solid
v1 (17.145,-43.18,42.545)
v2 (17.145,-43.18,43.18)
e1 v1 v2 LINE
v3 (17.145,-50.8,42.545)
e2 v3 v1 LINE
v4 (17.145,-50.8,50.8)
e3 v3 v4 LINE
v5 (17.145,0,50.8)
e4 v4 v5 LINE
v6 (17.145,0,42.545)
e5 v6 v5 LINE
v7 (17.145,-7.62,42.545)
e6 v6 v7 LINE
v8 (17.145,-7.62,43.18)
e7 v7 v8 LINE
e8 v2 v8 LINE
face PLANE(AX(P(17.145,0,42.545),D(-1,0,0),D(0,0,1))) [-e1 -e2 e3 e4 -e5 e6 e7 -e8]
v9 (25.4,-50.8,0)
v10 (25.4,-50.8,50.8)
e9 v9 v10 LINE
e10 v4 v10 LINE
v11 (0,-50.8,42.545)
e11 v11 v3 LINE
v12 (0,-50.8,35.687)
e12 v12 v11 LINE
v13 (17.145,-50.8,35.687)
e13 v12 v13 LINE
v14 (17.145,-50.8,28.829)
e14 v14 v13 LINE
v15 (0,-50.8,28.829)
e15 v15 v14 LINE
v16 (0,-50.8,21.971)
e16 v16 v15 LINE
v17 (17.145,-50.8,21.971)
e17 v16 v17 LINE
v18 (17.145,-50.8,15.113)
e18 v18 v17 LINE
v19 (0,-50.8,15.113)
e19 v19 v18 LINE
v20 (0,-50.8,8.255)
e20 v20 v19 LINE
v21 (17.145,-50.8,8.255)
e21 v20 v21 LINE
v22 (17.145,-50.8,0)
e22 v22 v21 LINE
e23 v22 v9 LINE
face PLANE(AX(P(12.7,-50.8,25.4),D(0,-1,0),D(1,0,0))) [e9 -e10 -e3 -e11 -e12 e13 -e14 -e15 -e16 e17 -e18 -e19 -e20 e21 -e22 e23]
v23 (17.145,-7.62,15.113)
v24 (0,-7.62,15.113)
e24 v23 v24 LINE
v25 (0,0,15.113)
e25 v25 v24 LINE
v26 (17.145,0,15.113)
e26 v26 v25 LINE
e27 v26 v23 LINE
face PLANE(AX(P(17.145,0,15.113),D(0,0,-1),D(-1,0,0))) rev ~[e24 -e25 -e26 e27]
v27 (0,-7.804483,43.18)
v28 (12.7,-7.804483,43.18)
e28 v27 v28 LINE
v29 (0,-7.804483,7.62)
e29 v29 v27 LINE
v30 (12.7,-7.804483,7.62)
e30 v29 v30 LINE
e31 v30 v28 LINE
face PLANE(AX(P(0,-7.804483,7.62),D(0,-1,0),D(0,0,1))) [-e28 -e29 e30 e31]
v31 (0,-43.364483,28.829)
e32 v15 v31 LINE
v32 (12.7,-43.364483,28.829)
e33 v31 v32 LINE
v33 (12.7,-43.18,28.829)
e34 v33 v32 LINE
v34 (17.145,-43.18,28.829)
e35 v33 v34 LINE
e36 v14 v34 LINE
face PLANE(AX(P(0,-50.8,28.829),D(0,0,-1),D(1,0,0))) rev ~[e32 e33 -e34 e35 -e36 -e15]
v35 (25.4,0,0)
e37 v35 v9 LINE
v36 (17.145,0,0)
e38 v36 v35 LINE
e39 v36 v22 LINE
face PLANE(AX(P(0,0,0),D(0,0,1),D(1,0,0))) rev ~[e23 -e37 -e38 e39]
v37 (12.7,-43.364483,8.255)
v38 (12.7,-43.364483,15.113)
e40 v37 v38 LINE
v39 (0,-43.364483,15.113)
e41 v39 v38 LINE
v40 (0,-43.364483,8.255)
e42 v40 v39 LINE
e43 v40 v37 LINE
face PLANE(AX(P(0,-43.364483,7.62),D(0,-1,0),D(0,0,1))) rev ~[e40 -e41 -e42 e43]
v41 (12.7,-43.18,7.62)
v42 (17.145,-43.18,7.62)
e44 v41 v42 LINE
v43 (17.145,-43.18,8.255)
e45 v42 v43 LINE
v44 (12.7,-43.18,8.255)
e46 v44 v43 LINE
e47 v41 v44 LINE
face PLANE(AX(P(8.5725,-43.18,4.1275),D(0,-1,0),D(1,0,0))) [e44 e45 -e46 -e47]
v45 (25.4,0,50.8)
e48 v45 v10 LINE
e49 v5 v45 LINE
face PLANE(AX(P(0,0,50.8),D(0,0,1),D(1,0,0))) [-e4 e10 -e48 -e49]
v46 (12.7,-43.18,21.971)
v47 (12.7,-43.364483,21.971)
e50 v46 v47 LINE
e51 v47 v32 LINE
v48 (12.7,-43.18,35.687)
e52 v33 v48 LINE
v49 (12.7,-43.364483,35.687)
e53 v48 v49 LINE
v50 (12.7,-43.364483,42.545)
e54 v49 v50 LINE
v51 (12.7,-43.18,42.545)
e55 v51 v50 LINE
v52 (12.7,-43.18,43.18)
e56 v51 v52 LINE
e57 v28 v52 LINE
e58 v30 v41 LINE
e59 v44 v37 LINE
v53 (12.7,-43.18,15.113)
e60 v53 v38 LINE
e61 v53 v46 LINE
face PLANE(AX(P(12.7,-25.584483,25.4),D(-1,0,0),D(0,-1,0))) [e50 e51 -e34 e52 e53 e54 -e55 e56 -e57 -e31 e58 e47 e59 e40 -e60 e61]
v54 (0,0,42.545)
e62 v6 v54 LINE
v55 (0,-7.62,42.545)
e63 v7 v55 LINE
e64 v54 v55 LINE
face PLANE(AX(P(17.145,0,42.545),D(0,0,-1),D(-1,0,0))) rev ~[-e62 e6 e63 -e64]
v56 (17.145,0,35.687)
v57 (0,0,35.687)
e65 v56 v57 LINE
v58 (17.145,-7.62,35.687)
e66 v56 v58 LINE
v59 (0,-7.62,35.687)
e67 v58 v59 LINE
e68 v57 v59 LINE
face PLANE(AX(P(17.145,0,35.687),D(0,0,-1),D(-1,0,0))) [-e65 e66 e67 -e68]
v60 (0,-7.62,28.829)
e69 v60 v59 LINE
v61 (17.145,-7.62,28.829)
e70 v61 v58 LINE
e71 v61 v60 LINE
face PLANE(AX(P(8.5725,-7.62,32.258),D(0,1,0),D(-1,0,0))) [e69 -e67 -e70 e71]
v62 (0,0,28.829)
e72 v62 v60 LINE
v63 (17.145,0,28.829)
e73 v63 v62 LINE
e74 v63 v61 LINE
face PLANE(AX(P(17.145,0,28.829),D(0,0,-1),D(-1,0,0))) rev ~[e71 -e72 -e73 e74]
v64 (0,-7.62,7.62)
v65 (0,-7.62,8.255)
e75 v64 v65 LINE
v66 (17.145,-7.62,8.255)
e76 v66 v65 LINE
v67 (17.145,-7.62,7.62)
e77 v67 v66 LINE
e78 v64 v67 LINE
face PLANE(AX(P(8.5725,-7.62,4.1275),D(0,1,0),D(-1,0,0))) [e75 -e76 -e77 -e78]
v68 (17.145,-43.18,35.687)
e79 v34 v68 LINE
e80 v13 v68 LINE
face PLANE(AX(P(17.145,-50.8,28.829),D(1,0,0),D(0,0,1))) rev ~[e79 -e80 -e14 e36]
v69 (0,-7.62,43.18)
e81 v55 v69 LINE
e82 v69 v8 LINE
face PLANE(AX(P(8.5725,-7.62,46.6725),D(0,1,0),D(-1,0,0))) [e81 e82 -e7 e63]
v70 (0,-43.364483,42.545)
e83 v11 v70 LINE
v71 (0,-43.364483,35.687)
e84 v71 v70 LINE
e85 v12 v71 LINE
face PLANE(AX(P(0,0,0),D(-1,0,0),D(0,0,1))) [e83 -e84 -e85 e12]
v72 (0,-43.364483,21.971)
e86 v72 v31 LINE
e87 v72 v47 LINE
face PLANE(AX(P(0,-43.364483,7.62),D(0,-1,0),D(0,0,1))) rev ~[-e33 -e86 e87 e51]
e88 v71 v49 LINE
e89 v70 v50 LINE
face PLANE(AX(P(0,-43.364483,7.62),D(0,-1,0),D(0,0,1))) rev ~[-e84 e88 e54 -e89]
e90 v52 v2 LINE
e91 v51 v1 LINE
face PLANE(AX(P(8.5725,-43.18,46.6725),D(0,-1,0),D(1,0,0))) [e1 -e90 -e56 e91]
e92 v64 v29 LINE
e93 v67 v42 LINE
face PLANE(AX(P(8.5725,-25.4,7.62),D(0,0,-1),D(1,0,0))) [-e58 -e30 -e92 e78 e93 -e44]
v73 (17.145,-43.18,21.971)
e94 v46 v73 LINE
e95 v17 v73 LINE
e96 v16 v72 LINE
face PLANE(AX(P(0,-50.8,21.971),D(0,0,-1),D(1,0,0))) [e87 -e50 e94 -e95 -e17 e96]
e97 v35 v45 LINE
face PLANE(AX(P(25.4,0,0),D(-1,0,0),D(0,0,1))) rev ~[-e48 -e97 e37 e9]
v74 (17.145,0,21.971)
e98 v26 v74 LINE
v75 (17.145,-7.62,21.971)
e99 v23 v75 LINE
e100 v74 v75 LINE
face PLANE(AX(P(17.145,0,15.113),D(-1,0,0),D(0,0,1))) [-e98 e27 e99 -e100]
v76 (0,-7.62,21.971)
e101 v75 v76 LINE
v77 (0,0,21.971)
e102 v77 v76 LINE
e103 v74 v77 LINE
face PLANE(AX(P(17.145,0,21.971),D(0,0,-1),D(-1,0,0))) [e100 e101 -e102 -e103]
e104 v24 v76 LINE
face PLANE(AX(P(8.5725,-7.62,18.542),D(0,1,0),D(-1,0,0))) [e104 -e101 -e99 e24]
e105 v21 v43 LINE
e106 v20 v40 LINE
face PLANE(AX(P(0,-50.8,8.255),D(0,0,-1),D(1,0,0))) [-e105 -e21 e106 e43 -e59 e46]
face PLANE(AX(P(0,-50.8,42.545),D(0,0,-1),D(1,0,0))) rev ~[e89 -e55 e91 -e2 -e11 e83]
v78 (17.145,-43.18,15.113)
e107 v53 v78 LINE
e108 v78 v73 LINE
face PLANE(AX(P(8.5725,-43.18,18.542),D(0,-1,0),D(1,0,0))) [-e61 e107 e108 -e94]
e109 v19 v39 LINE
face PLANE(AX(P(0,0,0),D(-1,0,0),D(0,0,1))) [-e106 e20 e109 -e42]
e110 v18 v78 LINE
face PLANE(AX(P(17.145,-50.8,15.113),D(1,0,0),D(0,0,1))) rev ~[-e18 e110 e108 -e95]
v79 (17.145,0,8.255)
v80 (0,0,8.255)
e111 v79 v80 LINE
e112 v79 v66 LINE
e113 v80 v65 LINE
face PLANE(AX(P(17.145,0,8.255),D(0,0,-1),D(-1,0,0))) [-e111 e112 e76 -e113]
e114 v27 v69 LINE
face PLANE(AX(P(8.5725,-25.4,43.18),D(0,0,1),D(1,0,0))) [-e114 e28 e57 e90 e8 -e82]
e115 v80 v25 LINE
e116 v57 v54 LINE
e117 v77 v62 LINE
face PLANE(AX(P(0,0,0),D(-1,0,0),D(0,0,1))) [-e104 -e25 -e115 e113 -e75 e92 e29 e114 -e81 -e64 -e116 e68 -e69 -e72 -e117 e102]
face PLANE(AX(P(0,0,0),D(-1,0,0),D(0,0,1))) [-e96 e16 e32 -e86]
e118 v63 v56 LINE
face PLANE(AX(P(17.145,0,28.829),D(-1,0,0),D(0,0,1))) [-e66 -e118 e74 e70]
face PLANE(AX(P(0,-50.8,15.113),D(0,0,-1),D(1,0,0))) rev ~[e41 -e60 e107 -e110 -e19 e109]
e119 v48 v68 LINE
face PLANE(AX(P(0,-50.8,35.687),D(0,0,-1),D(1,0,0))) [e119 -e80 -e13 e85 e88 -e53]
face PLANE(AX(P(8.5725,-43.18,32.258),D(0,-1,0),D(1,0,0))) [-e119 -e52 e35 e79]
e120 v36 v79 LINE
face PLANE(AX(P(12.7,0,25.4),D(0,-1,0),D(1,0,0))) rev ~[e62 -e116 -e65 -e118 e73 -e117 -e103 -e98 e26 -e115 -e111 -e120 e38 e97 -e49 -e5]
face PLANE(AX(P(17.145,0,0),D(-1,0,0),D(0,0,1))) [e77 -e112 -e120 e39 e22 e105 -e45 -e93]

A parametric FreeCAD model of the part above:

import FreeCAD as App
import Part
import Sketcher
Q = App.Units.Quantity

doc = App.newDocument("Part")
body = doc.addObject("PartDesign::Body", "Body")

# Sketch on XZ plane
sketch1 = doc.addObject("Sketcher::SketchObject", "Sketch")
body.addObject(sketch1)
sketch1.AttachmentSupport = (doc.XZ_Plane, [""])
sketch1.MapMode = "FlatFace"
sketch1.addGeometry(Part.LineSegment(App.Vector(0, 50.8, 0), App.Vector(0, 0, 0)), False)
sketch1.addGeometry(Part.LineSegment(App.Vector(0, 0, 0), App.Vector(25.4, 0, 0)), False)
sketch1.addGeometry(Part.LineSegment(App.Vector(25.4, 0, 0), App.Vector(25.4, 50.8, 0)), False)
sketch1.addGeometry(Part.LineSegment(App.Vector(25.4, 50.8, 0), App.Vector(0, 50.8, 0)), False)
sketch1.addConstraint(Sketcher.Constraint("Coincident", 0, 2, 1, 1))
sketch1.addConstraint(Sketcher.Constraint("Coincident", 1, 2, 2, 1))
sketch1.addConstraint(Sketcher.Constraint("Coincident", 2, 2, 3, 1))
sketch1.addConstraint(Sketcher.Constraint("Coincident", 3, 2, 0, 1))
sketch1.addConstraint(Sketcher.Constraint("Vertical", 0))
sketch1.addConstraint(Sketcher.Constraint("Horizontal", 1))
sketch1.addConstraint(Sketcher.Constraint("Vertical", 2))
sketch1.addConstraint(Sketcher.Constraint("Horizontal", 3))
sketch1.addConstraint(Sketcher.Constraint("Coincident", 0, 2, -1, 1))
sketch1.addConstraint(Sketcher.Constraint("DistanceX", 1, 1, 1, 2, Q("1 in")))
sketch1.addConstraint(Sketcher.Constraint("DistanceY", 0, 2, 0, 1, Q("2 in")))
pad1 = doc.addObject("PartDesign::Pad", "Pad")
body.addObject(pad1)
pad1.Profile = sketch1
pad1.Length = Q("2 in")

# Sketch on YZ plane
sketch2 = doc.addObject("Sketcher::SketchObject", "Sketch001")
body.addObject(sketch2)
sketch2.AttachmentSupport = (doc.YZ_Plane, [""])
sketch2.MapMode = "FlatFace"
sketch2.addGeometry(Part.LineSegment(App.Vector(-7.804483, 43.18, 0), App.Vector(-7.804483, 7.62, 0)), False)
sketch2.addGeometry(Part.LineSegment(App.Vector(-7.804483, 7.62, 0), App.Vector(-43.364483, 7.62, 0)), False)
sketch2.addGeometry(Part.LineSegment(App.Vector(-43.364483, 7.62, 0), App.Vector(-43.364483, 43.18, 0)), False)
sketch2.addGeometry(Part.LineSegment(App.Vector(-43.364483, 43.18, 0), App.Vector(-7.804483, 43.18, 0)), False)
sketch2.addConstraint(Sketcher.Constraint("Coincident", 0, 2, 1, 1))
sketch2.addConstraint(Sketcher.Constraint("Coincident", 1, 2, 2, 1))
sketch2.addConstraint(Sketcher.Constraint("Coincident", 2, 2, 3, 1))
sketch2.addConstraint(Sketcher.Constraint("Coincident", 3, 2, 0, 1))
sketch2.addConstraint(Sketcher.Constraint("Vertical", 0))
sketch2.addConstraint(Sketcher.Constraint("Horizontal", 1))
sketch2.addConstraint(Sketcher.Constraint("Vertical", 2))
sketch2.addConstraint(Sketcher.Constraint("Horizontal", 3))
sketch2.addConstraint(Sketcher.Constraint("Equal", 3, 0))
sketch2.addConstraint(Sketcher.Constraint("DistanceX", 1, 2, 1, 1, Q("1.4 in")))
sketch2.addConstraint(Sketcher.Constraint("DistanceY", -1, 1, 0, 2, Q("0.3 in")))
sketch2.addConstraint(Sketcher.Constraint("DistanceX", 0, 2, -1, 1, Q("7.804483 mm")))
pocket1 = doc.addObject("PartDesign::Pocket", "Pocket")
body.addObject(pocket1)
pocket1.Profile = sketch2
pocket1.Length = Q("0.5 in")
pocket1.Reversed = True

# Sketch on XZ plane
sketch3 = doc.addObject("Sketcher::SketchObject", "Sketch002")
body.addObject(sketch3)
sketch3.AttachmentSupport = (doc.XZ_Plane, [""])
sketch3.MapMode = "FlatFace"
sketch3.addGeometry(Part.LineSegment(App.Vector(17.145, 50.8, 0), App.Vector(17.145, 42.545, 0)), False)
sketch3.addGeometry(Part.LineSegment(App.Vector(17.145, 42.545, 0), App.Vector(0, 42.545, 0)), False)
sketch3.addGeometry(Part.LineSegment(App.Vector(0, 42.545, 0), App.Vector(0, 50.8, 0)), False)
sketch3.addGeometry(Part.LineSegment(App.Vector(0, 50.8, 0), App.Vector(17.145, 50.8, 0)), False)
sketch3.addGeometry(Part.LineSegment(App.Vector(17.145, 35.687, 0), App.Vector(17.145, 28.829, 0)), False)
sketch3.addGeometry(Part.LineSegment(App.Vector(17.145, 28.829, 0), App.Vector(0, 28.829, 0)), False)
sketch3.addGeometry(Part.LineSegment(App.Vector(0, 28.829, 0), App.Vector(0, 35.687, 0)), False)
sketch3.addGeometry(Part.LineSegment(App.Vector(0, 35.687, 0), App.Vector(17.145, 35.687, 0)), False)
sketch3.addGeometry(Part.LineSegment(App.Vector(17.145, 21.971, 0), App.Vector(17.145, 15.113, 0)), False)
sketch3.addGeometry(Part.LineSegment(App.Vector(17.145, 15.113, 0), App.Vector(0, 15.113, 0)), False)
sketch3.addGeometry(Part.LineSegment(App.Vector(0, 15.113, 0), App.Vector(0, 21.971, 0)), False)
sketch3.addGeometry(Part.LineSegment(App.Vector(0, 21.971, 0), App.Vector(17.145, 21.971, 0)), False)
sketch3.addGeometry(Part.LineSegment(App.Vector(17.145, 8.255, 0), App.Vector(17.145, 0, 0)), False)
sketch3.addGeometry(Part.LineSegment(App.Vector(17.145, 0, 0), App.Vector(0, 0, 0)), False)
sketch3.addGeometry(Part.LineSegment(App.Vector(0, 0, 0), App.Vector(0, 8.255, 0)), False)
sketch3.addGeometry(Part.LineSegment(App.Vector(0, 8.255, 0), App.Vector(17.145, 8.255, 0)), False)
sketch3.addConstraint(Sketcher.Constraint("Coincident", 0, 2, 1, 1))
sketch3.addConstraint(Sketcher.Constraint("Coincident", 1, 2, 2, 1))
sketch3.addConstraint(Sketcher.Constraint("Coincident", 2, 2, 3, 1))
sketch3.addConstraint(Sketcher.Constraint("Coincident", 3, 2, 0, 1))
sketch3.addConstraint(Sketcher.Constraint("Coincident", 4, 2, 5, 1))
sketch3.addConstraint(Sketcher.Constraint("Coincident", 5, 2, 6, 1))
sketch3.addConstraint(Sketcher.Constraint("Coincident", 6, 2, 7, 1))
sketch3.addConstraint(Sketcher.Constraint("Coincident", 7, 2, 4, 1))
sketch3.addConstraint(Sketcher.Constraint("Coincident", 8, 2, 9, 1))
sketch3.addConstraint(Sketcher.Constraint("Coincident", 9, 2, 10, 1))
sketch3.addConstraint(Sketcher.Constraint("Coincident", 10, 2, 11, 1))
sketch3.addConstraint(Sketcher.Constraint("Coincident", 11, 2, 8, 1))
sketch3.addConstraint(Sketcher.Constraint("Coincident", 12, 2, 13, 1))
sketch3.addConstraint(Sketcher.Constraint("Coincident", 13, 2, 14, 1))
sketch3.addConstraint(Sketcher.Constraint("Coincident", 14, 2, 15, 1))
sketch3.addConstraint(Sketcher.Constraint("Coincident", 15, 2, 12, 1))
sketch3.addConstraint(Sketcher.Constraint("Vertical", 0))
sketch3.addConstraint(Sketcher.Constraint("Horizontal", 1))
sketch3.addConstraint(Sketcher.Constraint("Vertical", 2))
sketch3.addConstraint(Sketcher.Constraint("Horizontal", 3))
sketch3.addConstraint(Sketcher.Constraint("Vertical", 4))
sketch3.addConstraint(Sketcher.Constraint("Horizontal", 5))
sketch3.addConstraint(Sketcher.Constraint("Vertical", 6))
sketch3.addConstraint(Sketcher.Constraint("Horizontal", 7))
sketch3.addConstraint(Sketcher.Constraint("Vertical", 8))
sketch3.addConstraint(Sketcher.Constraint("Horizontal", 9))
sketch3.addConstraint(Sketcher.Constraint("Vertical", 10))
sketch3.addConstraint(Sketcher.Constraint("Horizontal", 11))
sketch3.addConstraint(Sketcher.Constraint("Vertical", 12))
sketch3.addConstraint(Sketcher.Constraint("Horizontal", 13))
sketch3.addConstraint(Sketcher.Constraint("Vertical", 14))
sketch3.addConstraint(Sketcher.Constraint("Horizontal", 15))
sketch3.addConstraint(Sketcher.Constraint("Coincident", 13, 2, -1, 1))
sketch3.addConstraint(Sketcher.Constraint("PointOnObject", 1, 2, -2))
sketch3.addConstraint(Sketcher.Constraint("PointOnObject", 5, 2, -2))
sketch3.addConstraint(Sketcher.Constraint("PointOnObject", 9, 2, -2))
sketch3.addConstraint(Sketcher.Constraint("Vertical", 3, 2, 4, 2))
sketch3.addConstraint(Sketcher.Constraint("Vertical", 7, 2, 8, 2))
sketch3.addConstraint(Sketcher.Constraint("Vertical", 11, 2, 12, 2))
sketch3.addConstraint(Sketcher.Constraint("Equal", 6, 8))
sketch3.addConstraint(Sketcher.Constraint("Equal", 2, 12))
sketch3.addConstraint(Sketcher.Constraint("DistanceY", -1, 1, 2, 2, Q("2 in")))
sketch3.addConstraint(Sketcher.Constraint("DistanceY", 4, 2, 4, 1, Q("0.27 in")))
sketch3.addConstraint(Sketcher.Constraint("DistanceX", 1, 2, 1, 1, Q("0.675 in")))
sketch3.addConstraint(Sketcher.Constraint("DistanceY", 0, 2, 0, 1, Q("0.325 in")))
sketch3.addConstraint(Sketcher.Constraint("DistanceY", 4, 2, 0, 2, Q("0.54 in")))
sketch3.addConstraint(Sketcher.Constraint("DistanceY", 8, 2, 4, 2, Q("0.54 in")))
pocket2 = doc.addObject("PartDesign::Pocket", "Pocket001")
body.addObject(pocket2)
pocket2.Profile = sketch3
pocket2.Length = Q("0.3 in")
pocket2.Reversed = True

# Sketch on XZ plane
sketch4 = doc.addObject("Sketcher::SketchObject", "Sketch003")
body.addObject(sketch4)
sketch4.AttachmentSupport = (doc.XZ_Plane, [""])
sketch4.MapMode = "FlatFace"
sketch4.AttachmentOffset = App.Placement(App.Vector(0, 0, 2 * 25.4), App.Rotation())
sketch4.addGeometry(Part.LineSegment(App.Vector(0, 50.8, 0), App.Vector(0, 42.545, 0)), False)
sketch4.addGeometry(Part.LineSegment(App.Vector(0, 42.545, 0), App.Vector(17.145, 42.545, 0)), False)
sketch4.addGeometry(Part.LineSegment(App.Vector(17.145, 42.545, 0), App.Vector(17.145, 50.8, 0)), False)
sketch4.addGeometry(Part.LineSegment(App.Vector(17.145, 50.8, 0), App.Vector(0, 50.8, 0)), False)
sketch4.addGeometry(Part.LineSegment(App.Vector(0, 35.687, 0), App.Vector(0, 28.829, 0)), False)
sketch4.addGeometry(Part.LineSegment(App.Vector(0, 28.829, 0), App.Vector(17.145, 28.829, 0)), False)
sketch4.addGeometry(Part.LineSegment(App.Vector(17.145, 28.829, 0), App.Vector(17.145, 35.687, 0)), False)
sketch4.addGeometry(Part.LineSegment(App.Vector(17.145, 35.687, 0), App.Vector(0, 35.687, 0)), False)
sketch4.addGeometry(Part.LineSegment(App.Vector(0, 21.971, 0), App.Vector(0, 15.113, 0)), False)
sketch4.addGeometry(Part.LineSegment(App.Vector(0, 15.113, 0), App.Vector(17.145, 15.113, 0)), False)
sketch4.addGeometry(Part.LineSegment(App.Vector(17.145, 15.113, 0), App.Vector(17.145, 21.971, 0)), False)
sketch4.addGeometry(Part.LineSegment(App.Vector(17.145, 21.971, 0), App.Vector(0, 21.971, 0)), False)
sketch4.addGeometry(Part.LineSegment(App.Vector(0, 8.255, 0), App.Vector(0, 0, 0)), False)
sketch4.addGeometry(Part.LineSegment(App.Vector(0, 0, 0), App.Vector(17.145, 0, 0)), False)
sketch4.addGeometry(Part.LineSegment(App.Vector(17.145, 0, 0), App.Vector(17.145, 8.255, 0)), False)
sketch4.addGeometry(Part.LineSegment(App.Vector(17.145, 8.255, 0), App.Vector(0, 8.255, 0)), False)
sketch4.addConstraint(Sketcher.Constraint("Coincident", 0, 2, 1, 1))
sketch4.addConstraint(Sketcher.Constraint("Coincident", 1, 2, 2, 1))
sketch4.addConstraint(Sketcher.Constraint("Coincident", 2, 2, 3, 1))
sketch4.addConstraint(Sketcher.Constraint("Coincident", 3, 2, 0, 1))
sketch4.addConstraint(Sketcher.Constraint("Coincident", 4, 2, 5, 1))
sketch4.addConstraint(Sketcher.Constraint("Coincident", 5, 2, 6, 1))
sketch4.addConstraint(Sketcher.Constraint("Coincident", 6, 2, 7, 1))
sketch4.addConstraint(Sketcher.Constraint("Coincident", 7, 2, 4, 1))
sketch4.addConstraint(Sketcher.Constraint("Coincident", 8, 2, 9, 1))
sketch4.addConstraint(Sketcher.Constraint("Coincident", 9, 2, 10, 1))
sketch4.addConstraint(Sketcher.Constraint("Coincident", 10, 2, 11, 1))
sketch4.addConstraint(Sketcher.Constraint("Coincident", 11, 2, 8, 1))
sketch4.addConstraint(Sketcher.Constraint("Coincident", 12, 2, 13, 1))
sketch4.addConstraint(Sketcher.Constraint("Coincident", 13, 2, 14, 1))
sketch4.addConstraint(Sketcher.Constraint("Coincident", 14, 2, 15, 1))
sketch4.addConstraint(Sketcher.Constraint("Coincident", 15, 2, 12, 1))
sketch4.addConstraint(Sketcher.Constraint("Vertical", 0))
sketch4.addConstraint(Sketcher.Constraint("Horizontal", 1))
sketch4.addConstraint(Sketcher.Constraint("Vertical", 2))
sketch4.addConstraint(Sketcher.Constraint("Horizontal", 3))
sketch4.addConstraint(Sketcher.Constraint("Vertical", 4))
sketch4.addConstraint(Sketcher.Constraint("Horizontal", 5))
sketch4.addConstraint(Sketcher.Constraint("Vertical", 6))
sketch4.addConstraint(Sketcher.Constraint("Horizontal", 7))
sketch4.addConstraint(Sketcher.Constraint("Vertical", 8))
sketch4.addConstraint(Sketcher.Constraint("Horizontal", 9))
sketch4.addConstraint(Sketcher.Constraint("Vertical", 10))
sketch4.addConstraint(Sketcher.Constraint("Horizontal", 11))
sketch4.addConstraint(Sketcher.Constraint("Vertical", 12))
sketch4.addConstraint(Sketcher.Constraint("Horizontal", 13))
sketch4.addConstraint(Sketcher.Constraint("Vertical", 14))
sketch4.addConstraint(Sketcher.Constraint("Horizontal", 15))
sketch4.addConstraint(Sketcher.Constraint("Coincident", 12, 2, -1, 1))
sketch4.addConstraint(Sketcher.Constraint("PointOnObject", 0, 2, -2))
sketch4.addConstraint(Sketcher.Constraint("PointOnObject", 4, 2, -2))
sketch4.addConstraint(Sketcher.Constraint("PointOnObject", 8, 2, -2))
sketch4.addConstraint(Sketcher.Constraint("Vertical", 2, 2, 5, 2))
sketch4.addConstraint(Sketcher.Constraint("Vertical", 6, 2, 9, 2))
sketch4.addConstraint(Sketcher.Constraint("Vertical", 10, 2, 13, 2))
sketch4.addConstraint(Sketcher.Constraint("Equal", 6, 8))
sketch4.addConstraint(Sketcher.Constraint("Equal", 2, 12))
sketch4.addConstraint(Sketcher.Constraint("DistanceY", -1, 1, 2, 2, Q("2 in")))
sketch4.addConstraint(Sketcher.Constraint("DistanceY", 4, 2, 4, 1, Q("0.27 in")))
sketch4.addConstraint(Sketcher.Constraint("DistanceX", 1, 1, 1, 2, Q("0.675 in")))
sketch4.addConstraint(Sketcher.Constraint("DistanceY", 0, 2, 0, 1, Q("0.325 in")))
sketch4.addConstraint(Sketcher.Constraint("DistanceY", 4, 2, 0, 2, Q("0.54 in")))
sketch4.addConstraint(Sketcher.Constraint("DistanceY", 8, 2, 4, 2, Q("0.54 in")))
pocket3 = doc.addObject("PartDesign::Pocket", "Pocket002")
body.addObject(pocket3)
pocket3.Profile = sketch4
pocket3.Length = Q("0.3 in")

# Sketch on XY plane
sketch5 = doc.addObject("Sketcher::SketchObject", "Sketch004")
body.addObject(sketch5)
sketch5.AttachmentSupport = (doc.XY_Plane, [""])
sketch5.MapMode = "FlatFace"
sketch5.AttachmentOffset = App.Placement(App.Vector(0, 0, 2 * 25.4), App.Rotation())
sketch5.addGeometry(Part.LineSegment(App.Vector(0, -7.62, 0), App.Vector(0, -43.18, 0)), False)
sketch5.addGeometry(Part.LineSegment(App.Vector(0, -43.18, 0), App.Vector(17.145, -43.18, 0)), False)
sketch5.addGeometry(Part.LineSegment(App.Vector(17.145, -43.18, 0), App.Vector(17.145, -7.62, 0)), False)
sketch5.addGeometry(Part.LineSegment(App.Vector(17.145, -7.62, 0), App.Vector(0, -7.62, 0)), False)
sketch5.addConstraint(Sketcher.Constraint("Coincident", 0, 2, 1, 1))
sketch5.addConstraint(Sketcher.Constraint("Coincident", 1, 2, 2, 1))
sketch5.addConstraint(Sketcher.Constraint("Coincident", 2, 2, 3, 1))
sketch5.addConstraint(Sketcher.Constraint("Coincident", 3, 2, 0, 1))
sketch5.addConstraint(Sketcher.Constraint("Vertical", 0))
sketch5.addConstraint(Sketcher.Constraint("Horizontal", 1))
sketch5.addConstraint(Sketcher.Constraint("Vertical", 2))
sketch5.addConstraint(Sketcher.Constraint("Horizontal", 3))
sketch5.addConstraint(Sketcher.Constraint("PointOnObject", 0, 2, -2))
sketch5.addConstraint(Sketcher.Constraint("DistanceY", 0, 2, 0, 1, Q("1.4 in")))
sketch5.addConstraint(Sketcher.Constraint("DistanceY", 0, 2, -1, 1, Q("1.7 in")))
sketch5.addConstraint(Sketcher.Constraint("DistanceX", 1, 1, 1, 2, Q("0.675 in")))
pocket4 = doc.addObject("PartDesign::Pocket", "Pocket003")
body.addObject(pocket4)
pocket4.Profile = sketch5
pocket4.Length = Q("0.3 in")

# Sketch on XY plane
sketch6 = doc.addObject("Sketcher::SketchObject", "Sketch005")
body.addObject(sketch6)
sketch6.AttachmentSupport = (doc.XY_Plane, [""])
sketch6.MapMode = "FlatFace"
sketch6.addGeometry(Part.LineSegment(App.Vector(0, -43.18, 0), App.Vector(0, -7.62, 0)), False)
sketch6.addGeometry(Part.LineSegment(App.Vector(0, -7.62, 0), App.Vector(17.145, -7.62, 0)), False)
sketch6.addGeometry(Part.LineSegment(App.Vector(17.145, -7.62, 0), App.Vector(17.145, -43.18, 0)), False)
sketch6.addGeometry(Part.LineSegment(App.Vector(17.145, -43.18, 0), App.Vector(0, -43.18, 0)), False)
sketch6.addConstraint(Sketcher.Constraint("Coincident", 0, 2, 1, 1))
sketch6.addConstraint(Sketcher.Constraint("Coincident", 1, 2, 2, 1))
sketch6.addConstraint(Sketcher.Constraint("Coincident", 2, 2, 3, 1))
sketch6.addConstraint(Sketcher.Constraint("Coincident", 3, 2, 0, 1))
sketch6.addConstraint(Sketcher.Constraint("Vertical", 0))
sketch6.addConstraint(Sketcher.Constraint("Horizontal", 1))
sketch6.addConstraint(Sketcher.Constraint("Vertical", 2))
sketch6.addConstraint(Sketcher.Constraint("Horizontal", 3))
sketch6.addConstraint(Sketcher.Constraint("PointOnObject", 0, 2, -2))
sketch6.addConstraint(Sketcher.Constraint("DistanceY", 0, 1, 0, 2, Q("1.4 in")))
sketch6.addConstraint(Sketcher.Constraint("DistanceY", 0, 2, -1, 1, Q("0.3 in")))
sketch6.addConstraint(Sketcher.Constraint("DistanceX", 1, 1, 1, 2, Q("0.675 in")))
pocket5 = doc.addObject("PartDesign::Pocket", "Pocket004")
body.addObject(pocket5)
pocket5.Profile = sketch6
pocket5.Length = Q("0.3 in")
pocket5.Reversed = True

doc.recompute()
